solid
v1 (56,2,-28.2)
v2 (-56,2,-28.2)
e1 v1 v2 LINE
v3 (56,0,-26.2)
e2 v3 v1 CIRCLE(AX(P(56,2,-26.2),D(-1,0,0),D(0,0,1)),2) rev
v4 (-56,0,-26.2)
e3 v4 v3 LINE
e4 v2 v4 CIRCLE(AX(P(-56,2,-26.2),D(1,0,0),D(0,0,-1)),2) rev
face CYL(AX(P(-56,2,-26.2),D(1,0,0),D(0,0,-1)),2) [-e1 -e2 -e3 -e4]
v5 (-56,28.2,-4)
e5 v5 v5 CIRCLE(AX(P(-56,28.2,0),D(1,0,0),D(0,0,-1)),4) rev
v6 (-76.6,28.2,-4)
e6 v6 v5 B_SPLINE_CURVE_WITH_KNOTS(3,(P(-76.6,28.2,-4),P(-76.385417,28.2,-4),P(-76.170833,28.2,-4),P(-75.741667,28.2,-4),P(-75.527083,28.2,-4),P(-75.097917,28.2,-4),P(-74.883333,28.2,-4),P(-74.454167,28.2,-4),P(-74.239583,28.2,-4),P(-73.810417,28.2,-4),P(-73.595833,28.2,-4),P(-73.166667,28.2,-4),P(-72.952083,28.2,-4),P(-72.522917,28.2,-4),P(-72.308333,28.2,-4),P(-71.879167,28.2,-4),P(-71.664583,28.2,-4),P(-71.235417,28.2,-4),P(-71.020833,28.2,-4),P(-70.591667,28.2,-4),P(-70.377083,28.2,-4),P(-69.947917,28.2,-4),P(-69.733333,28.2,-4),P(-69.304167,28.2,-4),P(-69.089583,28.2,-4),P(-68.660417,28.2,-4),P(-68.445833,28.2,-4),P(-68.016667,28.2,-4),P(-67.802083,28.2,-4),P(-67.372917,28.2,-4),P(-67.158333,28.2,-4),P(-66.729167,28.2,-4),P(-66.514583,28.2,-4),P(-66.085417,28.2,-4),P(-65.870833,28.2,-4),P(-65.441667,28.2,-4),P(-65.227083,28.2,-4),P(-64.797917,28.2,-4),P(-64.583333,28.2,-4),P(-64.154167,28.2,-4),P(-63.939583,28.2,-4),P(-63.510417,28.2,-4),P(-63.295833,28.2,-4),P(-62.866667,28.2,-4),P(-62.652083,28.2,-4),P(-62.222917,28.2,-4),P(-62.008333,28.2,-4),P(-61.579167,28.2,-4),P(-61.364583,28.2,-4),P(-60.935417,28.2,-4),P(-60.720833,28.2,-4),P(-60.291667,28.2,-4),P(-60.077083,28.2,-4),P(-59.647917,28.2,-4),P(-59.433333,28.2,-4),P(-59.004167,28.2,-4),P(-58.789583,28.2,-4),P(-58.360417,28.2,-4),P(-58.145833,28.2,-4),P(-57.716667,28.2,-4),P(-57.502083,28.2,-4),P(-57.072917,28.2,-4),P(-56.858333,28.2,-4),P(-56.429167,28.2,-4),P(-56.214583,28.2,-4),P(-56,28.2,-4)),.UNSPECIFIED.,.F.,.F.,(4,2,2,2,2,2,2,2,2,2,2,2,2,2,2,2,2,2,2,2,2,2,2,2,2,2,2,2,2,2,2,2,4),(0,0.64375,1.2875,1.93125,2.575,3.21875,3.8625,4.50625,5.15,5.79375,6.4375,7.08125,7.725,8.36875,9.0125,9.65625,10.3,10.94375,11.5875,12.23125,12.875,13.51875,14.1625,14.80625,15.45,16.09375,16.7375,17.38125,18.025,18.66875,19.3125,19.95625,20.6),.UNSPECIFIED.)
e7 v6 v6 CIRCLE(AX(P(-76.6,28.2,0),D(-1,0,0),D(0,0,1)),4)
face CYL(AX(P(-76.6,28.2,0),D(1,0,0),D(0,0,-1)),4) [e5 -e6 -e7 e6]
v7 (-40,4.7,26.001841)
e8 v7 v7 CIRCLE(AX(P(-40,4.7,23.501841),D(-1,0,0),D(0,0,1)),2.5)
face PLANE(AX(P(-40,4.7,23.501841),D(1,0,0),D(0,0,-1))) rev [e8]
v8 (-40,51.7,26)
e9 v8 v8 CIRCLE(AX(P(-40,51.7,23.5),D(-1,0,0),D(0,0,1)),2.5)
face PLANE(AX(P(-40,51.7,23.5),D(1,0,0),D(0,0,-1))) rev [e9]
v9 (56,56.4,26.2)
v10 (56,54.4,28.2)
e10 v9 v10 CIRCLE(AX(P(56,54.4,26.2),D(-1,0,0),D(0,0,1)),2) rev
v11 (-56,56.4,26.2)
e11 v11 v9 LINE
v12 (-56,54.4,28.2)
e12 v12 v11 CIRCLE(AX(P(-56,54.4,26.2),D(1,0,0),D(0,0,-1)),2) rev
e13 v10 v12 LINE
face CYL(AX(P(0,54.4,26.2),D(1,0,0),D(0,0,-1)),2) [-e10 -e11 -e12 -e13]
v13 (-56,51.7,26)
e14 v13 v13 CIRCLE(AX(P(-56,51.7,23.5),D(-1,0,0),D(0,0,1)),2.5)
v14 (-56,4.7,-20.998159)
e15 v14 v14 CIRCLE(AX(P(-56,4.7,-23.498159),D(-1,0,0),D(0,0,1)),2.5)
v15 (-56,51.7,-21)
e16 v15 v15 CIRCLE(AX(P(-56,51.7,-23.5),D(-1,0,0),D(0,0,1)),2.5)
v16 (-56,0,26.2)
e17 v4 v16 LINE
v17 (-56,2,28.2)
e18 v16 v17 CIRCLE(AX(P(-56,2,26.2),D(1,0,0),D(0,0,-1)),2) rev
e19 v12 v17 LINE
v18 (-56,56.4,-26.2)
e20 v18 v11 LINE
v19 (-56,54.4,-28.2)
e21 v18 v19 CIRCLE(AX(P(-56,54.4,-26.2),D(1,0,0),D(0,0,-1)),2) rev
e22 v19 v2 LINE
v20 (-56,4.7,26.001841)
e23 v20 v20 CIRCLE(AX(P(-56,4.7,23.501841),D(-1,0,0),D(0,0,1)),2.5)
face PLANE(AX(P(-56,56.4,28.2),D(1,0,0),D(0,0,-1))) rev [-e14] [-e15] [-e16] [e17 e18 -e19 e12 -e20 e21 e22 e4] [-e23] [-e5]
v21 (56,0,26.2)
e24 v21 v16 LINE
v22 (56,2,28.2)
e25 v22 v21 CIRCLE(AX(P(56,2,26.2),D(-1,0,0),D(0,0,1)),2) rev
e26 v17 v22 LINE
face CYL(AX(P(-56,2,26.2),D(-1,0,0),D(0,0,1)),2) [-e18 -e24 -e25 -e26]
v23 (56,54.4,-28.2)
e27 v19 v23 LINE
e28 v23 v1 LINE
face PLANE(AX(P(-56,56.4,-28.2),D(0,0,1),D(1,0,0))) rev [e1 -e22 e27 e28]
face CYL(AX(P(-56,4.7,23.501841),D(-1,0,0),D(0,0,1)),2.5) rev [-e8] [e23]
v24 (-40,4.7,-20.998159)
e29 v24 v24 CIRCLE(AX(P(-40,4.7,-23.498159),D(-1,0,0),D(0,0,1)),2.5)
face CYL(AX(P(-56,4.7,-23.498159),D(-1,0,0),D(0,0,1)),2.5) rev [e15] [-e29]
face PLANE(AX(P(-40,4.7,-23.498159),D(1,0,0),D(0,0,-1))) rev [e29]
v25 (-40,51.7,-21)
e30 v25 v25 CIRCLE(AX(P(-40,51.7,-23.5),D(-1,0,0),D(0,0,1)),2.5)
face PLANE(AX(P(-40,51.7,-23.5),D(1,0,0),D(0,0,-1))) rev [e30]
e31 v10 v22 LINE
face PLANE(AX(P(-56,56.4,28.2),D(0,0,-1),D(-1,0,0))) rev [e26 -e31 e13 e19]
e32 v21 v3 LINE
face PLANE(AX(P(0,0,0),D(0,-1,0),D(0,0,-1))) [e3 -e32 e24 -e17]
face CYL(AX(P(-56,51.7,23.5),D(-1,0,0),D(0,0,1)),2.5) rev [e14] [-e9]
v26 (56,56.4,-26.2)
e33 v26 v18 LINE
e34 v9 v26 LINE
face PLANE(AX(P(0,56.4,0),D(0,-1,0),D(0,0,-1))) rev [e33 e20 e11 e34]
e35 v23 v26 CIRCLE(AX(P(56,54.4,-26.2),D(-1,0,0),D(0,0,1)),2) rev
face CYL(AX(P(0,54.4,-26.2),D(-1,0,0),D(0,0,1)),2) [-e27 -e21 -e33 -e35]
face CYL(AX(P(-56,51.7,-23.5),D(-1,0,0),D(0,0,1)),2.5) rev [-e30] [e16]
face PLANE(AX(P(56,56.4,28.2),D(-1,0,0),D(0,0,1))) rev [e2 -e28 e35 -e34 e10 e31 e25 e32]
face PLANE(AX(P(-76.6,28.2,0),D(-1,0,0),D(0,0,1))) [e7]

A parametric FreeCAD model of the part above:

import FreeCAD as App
import Part
import Sketcher


def edges_at(feature, points):
    """Names of the edges that pass closest to the given points."""
    edges = feature.Shape.Edges
    near = lambda p: min(range(len(edges)), key=lambda i: edges[i].distToShape(Part.Vertex(*p))[0])
    return sorted({f"Edge{near(p) + 1}" for p in points})


def add_polygon(sketch, points):
    """Adds a closed chain of lines whose ends are joined by coincident constraints."""
    first, n = sketch.GeometryCount, len(points)
    for a, b in zip(points, points[1:] + points[:1]):
        sketch.addGeometry(Part.LineSegment(App.Vector(*a, 0), App.Vector(*b, 0)), False)
    for i in range(n):
        sketch.addConstraint(Sketcher.Constraint("Coincident", first + i, 2, first + (i + 1) % n, 1))

doc = App.newDocument("Part")
params = doc.addObject("Spreadsheet::Sheet", "Params")
for row, (alias, value) in enumerate([
    ("sketch1_width", "112 mm"),
    ("sketch1_height", "56.4 mm"),
    ("pad1_length", "56.4 mm"),
    ("fillet_radius", "2 mm"),
    ("sketch2_diameter", "8 mm"),
    ("pad2_length", "20.6 mm"),
    ("sketch3_diameter", "5 mm"),
    ("hole_diameter", "5 mm"),
    ("hole_depth", "16 mm"),
], start=1):
    params.set(f"A{row}", alias)
    params.set(f"B{row}", "=" + value)
    params.setAlias(f"B{row}", alias)

body = doc.addObject("PartDesign::Body", "Body")

# Sketch on XZ plane
sketch1 = body.newObject("Sketcher::SketchObject", "Sketch")
sketch1.AttachmentSupport = (doc.getObject("XZ_Plane"), [""])
sketch1.MapMode = "FlatFace"
add_polygon(sketch1, [(-56, -28.2), (-56, 28.2), (56, 28.2), (56, -28.2)])  # lines 0-3
sketch1.addConstraint([
    Sketcher.Constraint("Vertical", 0),
    Sketcher.Constraint("Horizontal", 1),
    Sketcher.Constraint("Vertical", 2),
    Sketcher.Constraint("Horizontal", 3),
    Sketcher.Constraint("Symmetric", 0, 2, 2, 2, -1, 1),
    Sketcher.Constraint("DistanceX", 1, 1, 1, 2, 112.0),
    Sketcher.Constraint("DistanceY", 0, 1, 0, 2, 56.4),
])
sketch1.setExpression("Constraints[9]", "Params.sketch1_width")
sketch1.setExpression("Constraints[10]", "Params.sketch1_height")
pad1 = body.newObject("PartDesign::Pad", "Pad")
pad1.Profile = sketch1
pad1.setExpression("Length", "Params.pad1_length")
pad1.Reversed = True
doc.recompute()

fillet = body.newObject("PartDesign::Fillet", "Fillet")
fillet.Base = (pad1, edges_at(pad1, [
    (0, 56.4, 28.2),
    (0, 0, 28.2),
    (0, 0, -28.2),
    (0, 56.4, -28.2),
]))
fillet.setExpression("Radius", "Params.fillet_radius")

# Sketch on YZ plane
sketch2 = body.newObject("Sketcher::SketchObject", "Sketch001")
sketch2.AttachmentSupport = (doc.getObject("YZ_Plane"), [""])
sketch2.MapMode = "FlatFace"
sketch2.AttachmentOffset = App.Placement(App.Vector(0, 0, -56), App.Rotation())
sketch2.addGeometry(Part.Circle(App.Vector(28.2, 0, 0), App.Vector(0, 0, 1), 4), False)
sketch2.addConstraint([
    Sketcher.Constraint("PointOnObject", 0, 3, -1),
    Sketcher.Constraint("Diameter", 0, 8.0),
    Sketcher.Constraint("DistanceX", -1, 1, 0, 3, 28.2),
])
sketch2.setExpression("Constraints[1]", "Params.sketch2_diameter")
pad2 = body.newObject("PartDesign::Pad", "Pad001")
pad2.Profile = sketch2
pad2.setExpression("Length", "Params.pad2_length")
pad2.Reversed = True

# Sketch on YZ plane
sketch3 = body.newObject("Sketcher::SketchObject", "Sketch002")
sketch3.AttachmentSupport = (doc.getObject("YZ_Plane"), [""])
sketch3.MapMode = "FlatFace"
sketch3.AttachmentOffset = App.Placement(App.Vector(0, 0, -56), App.Rotation())
sketch3.addGeometry([
    Part.Circle(App.Vector(51.7, -23.5, 0), App.Vector(0, 0, 1), 2.5),
    Part.Circle(App.Vector(51.7, 23.5, 0), App.Vector(0, 0, 1), 2.5),
    Part.Circle(App.Vector(4.7, 23.501841, 0), App.Vector(0, 0, 1), 2.5),
    Part.Circle(App.Vector(4.7, -23.498159, 0), App.Vector(0, 0, 1), 2.5),
], False)
sketch3.addConstraint([
    Sketcher.Constraint("Equal", 0, 1),
    Sketcher.Constraint("Equal", 1, 2),
    Sketcher.Constraint("Equal", 2, 3),
    Sketcher.Constraint("Symmetric", 0, 3, 1, 3, -1),
    Sketcher.Constraint("Vertical", 2, 3, 3, 3),
    Sketcher.Constraint("Diameter", 0, 5.0),
    Sketcher.Constraint("DistanceY", 0, 3, 1, 3, 47.0),
    Sketcher.Constraint("DistanceX", 2, 3, 1, 3, 47.0),
    Sketcher.Constraint("DistanceY", 3, 3, 2, 3, 47.0),
    Sketcher.Constraint("DistanceX", -1, 1, 0, 3, 51.7),
    Sketcher.Constraint("DistanceY", -1, 1, 2, 3, 23.501841),
])
sketch3.setExpression("Constraints[5]", "Params.sketch3_diameter")
doc.recompute()
hole = body.newObject("PartDesign::Hole", "Hole")
hole.Profile = sketch3
hole.ThreadType = "None"
hole.setExpression("Diameter", "Params.hole_diameter")
hole.DepthType = "Dimension"
hole.setExpression("Depth", "Params.hole_depth")
hole.DrillPoint = "Flat"
hole.Reversed = True

doc.recompute()
